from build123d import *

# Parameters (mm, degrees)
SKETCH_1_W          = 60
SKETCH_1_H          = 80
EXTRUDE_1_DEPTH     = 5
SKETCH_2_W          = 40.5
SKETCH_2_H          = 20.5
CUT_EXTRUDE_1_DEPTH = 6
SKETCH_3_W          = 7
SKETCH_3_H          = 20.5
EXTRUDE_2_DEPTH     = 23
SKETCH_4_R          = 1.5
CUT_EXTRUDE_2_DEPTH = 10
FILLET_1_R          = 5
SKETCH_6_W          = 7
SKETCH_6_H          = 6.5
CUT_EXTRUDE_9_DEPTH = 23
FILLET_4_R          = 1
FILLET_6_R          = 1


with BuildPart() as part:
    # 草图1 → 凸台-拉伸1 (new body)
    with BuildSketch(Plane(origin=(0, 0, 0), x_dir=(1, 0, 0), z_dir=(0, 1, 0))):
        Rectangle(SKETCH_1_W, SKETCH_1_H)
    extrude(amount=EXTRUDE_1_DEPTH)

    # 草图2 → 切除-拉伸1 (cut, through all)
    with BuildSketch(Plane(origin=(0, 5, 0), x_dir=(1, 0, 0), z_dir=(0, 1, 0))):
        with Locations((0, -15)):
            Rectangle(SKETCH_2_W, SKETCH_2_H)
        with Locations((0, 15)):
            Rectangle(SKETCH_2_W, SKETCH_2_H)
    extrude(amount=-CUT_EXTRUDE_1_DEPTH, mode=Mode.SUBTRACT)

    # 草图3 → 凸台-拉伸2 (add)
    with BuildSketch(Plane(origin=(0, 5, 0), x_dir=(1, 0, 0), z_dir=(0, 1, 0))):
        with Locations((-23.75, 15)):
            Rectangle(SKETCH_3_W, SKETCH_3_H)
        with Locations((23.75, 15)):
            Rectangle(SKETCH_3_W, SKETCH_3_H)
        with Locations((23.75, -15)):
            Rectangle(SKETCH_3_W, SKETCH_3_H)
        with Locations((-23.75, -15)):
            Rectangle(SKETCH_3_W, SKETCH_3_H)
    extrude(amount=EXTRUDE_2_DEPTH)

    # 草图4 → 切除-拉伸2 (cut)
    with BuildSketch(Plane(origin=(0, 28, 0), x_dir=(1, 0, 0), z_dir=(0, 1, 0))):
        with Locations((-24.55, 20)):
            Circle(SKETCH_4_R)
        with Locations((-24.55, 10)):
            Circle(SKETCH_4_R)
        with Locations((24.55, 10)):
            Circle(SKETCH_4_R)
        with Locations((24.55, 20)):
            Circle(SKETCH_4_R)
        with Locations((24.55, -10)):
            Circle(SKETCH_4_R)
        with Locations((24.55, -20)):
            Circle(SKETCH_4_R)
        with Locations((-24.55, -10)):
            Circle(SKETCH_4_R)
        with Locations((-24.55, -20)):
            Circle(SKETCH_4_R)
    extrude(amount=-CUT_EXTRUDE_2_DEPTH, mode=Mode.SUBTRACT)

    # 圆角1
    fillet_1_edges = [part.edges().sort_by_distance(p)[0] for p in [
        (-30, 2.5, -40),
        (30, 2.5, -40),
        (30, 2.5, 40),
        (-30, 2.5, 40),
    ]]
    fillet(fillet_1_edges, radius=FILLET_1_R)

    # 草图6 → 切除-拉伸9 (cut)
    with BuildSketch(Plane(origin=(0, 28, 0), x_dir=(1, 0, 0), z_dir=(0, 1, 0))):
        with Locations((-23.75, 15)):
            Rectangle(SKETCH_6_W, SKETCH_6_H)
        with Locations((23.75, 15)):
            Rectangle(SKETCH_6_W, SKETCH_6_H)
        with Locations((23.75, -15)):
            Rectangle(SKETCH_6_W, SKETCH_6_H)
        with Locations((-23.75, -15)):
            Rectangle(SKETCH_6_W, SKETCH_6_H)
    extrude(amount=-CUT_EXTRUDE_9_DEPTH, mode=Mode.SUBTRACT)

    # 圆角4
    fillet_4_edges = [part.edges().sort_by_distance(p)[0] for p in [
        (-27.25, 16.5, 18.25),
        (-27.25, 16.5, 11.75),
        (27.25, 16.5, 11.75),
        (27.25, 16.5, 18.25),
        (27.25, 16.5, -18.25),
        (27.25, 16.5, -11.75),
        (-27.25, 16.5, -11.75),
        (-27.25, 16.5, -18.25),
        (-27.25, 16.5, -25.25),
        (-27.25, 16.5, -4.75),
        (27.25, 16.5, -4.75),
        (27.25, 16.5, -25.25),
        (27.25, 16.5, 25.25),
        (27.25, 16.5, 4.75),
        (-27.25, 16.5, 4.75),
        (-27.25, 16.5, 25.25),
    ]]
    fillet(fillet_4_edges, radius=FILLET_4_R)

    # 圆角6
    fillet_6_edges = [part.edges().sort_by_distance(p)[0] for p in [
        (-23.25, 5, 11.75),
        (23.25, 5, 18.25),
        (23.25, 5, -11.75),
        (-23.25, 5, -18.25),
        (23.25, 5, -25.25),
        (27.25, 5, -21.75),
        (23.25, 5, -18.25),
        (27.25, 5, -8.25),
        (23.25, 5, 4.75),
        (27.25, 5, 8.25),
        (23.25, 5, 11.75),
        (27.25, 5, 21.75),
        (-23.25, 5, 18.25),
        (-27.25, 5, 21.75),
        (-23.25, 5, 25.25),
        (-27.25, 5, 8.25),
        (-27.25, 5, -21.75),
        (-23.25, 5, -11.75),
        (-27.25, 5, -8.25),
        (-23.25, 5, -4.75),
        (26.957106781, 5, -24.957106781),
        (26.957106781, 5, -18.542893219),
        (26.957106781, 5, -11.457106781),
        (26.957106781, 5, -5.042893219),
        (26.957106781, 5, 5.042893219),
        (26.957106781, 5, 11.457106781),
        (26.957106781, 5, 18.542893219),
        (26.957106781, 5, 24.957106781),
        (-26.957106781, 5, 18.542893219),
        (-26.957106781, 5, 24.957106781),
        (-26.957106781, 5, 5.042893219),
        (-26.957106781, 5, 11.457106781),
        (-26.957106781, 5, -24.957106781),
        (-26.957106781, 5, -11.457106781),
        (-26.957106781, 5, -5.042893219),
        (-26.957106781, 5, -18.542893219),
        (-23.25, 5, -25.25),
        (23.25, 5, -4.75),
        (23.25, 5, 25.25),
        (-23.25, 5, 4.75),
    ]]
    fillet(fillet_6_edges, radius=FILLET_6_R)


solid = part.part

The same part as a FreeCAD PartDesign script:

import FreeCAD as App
import Part
import Sketcher

V = App.Vector


def edges_at(feature, points):
    """Names of the edges that pass closest to the given points."""
    edges = feature.Shape.Edges
    near = lambda p: min(range(len(edges)), key=lambda i: edges[i].distToShape(Part.Vertex(*p))[0])
    return sorted({f"Edge{near(p) + 1}" for p in points})


def add_polygon(sketch, points):
    """Adds a closed chain of lines whose ends are joined by coincident constraints."""
    first, n = sketch.GeometryCount, len(points)
    for a, b in zip(points, points[1:] + points[:1]):
        sketch.addGeometry(Part.LineSegment(App.Vector(*a, 0), App.Vector(*b, 0)), False)
    for i in range(n):
        sketch.addConstraint(Sketcher.Constraint("Coincident", first + i, 2, first + (i + 1) % n, 1))

doc = App.newDocument("Part")
body = doc.addObject("PartDesign::Body", "Body")

sketch1 = body.newObject("Sketcher::SketchObject", "Sketch")
sketch1.AttachmentSupport = (doc.getObject("XZ_Plane"), [""])
sketch1.MapMode = "FlatFace"
add_polygon(sketch1, [(-30, -40), (-30, 40), (30, 40), (30, -40)])
sketch1.addConstraint([
    Sketcher.Constraint("Vertical", 0),
    Sketcher.Constraint("Horizontal", 1),
    Sketcher.Constraint("Vertical", 2),
    Sketcher.Constraint("Horizontal", 3),
    Sketcher.Constraint("Symmetric", 0, 2, 2, 2, -1, 1),
    Sketcher.Constraint("DistanceX", 1, 1, 1, 2, 60.0),
    Sketcher.Constraint("DistanceY", 0, 1, 0, 2, 80.0),
])
pad1 = body.newObject("PartDesign::Pad", "Pad")
pad1.Profile = sketch1
pad1.Length = 5
pad1.Reversed = True

sketch2 = body.newObject("Sketcher::SketchObject", "Sketch001")
sketch2.AttachmentSupport = (doc.getObject("XZ_Plane"), [""])
sketch2.MapMode = "FlatFace"
sketch2.AttachmentOffset = App.Placement(V(0, 0, -5), App.Rotation())
add_polygon(sketch2, [(-20.25, 4.75), (-20.25, 25.25), (20.25, 25.25), (20.25, 4.75)])
add_polygon(sketch2, [(-20.25, -25.25), (-20.25, -4.75), (20.25, -4.75), (20.25, -25.25)])
sketch2.addConstraint([
    Sketcher.Constraint("Vertical", 0),
    Sketcher.Constraint("Horizontal", 1),
    Sketcher.Constraint("Vertical", 2),
    Sketcher.Constraint("Horizontal", 3),
    Sketcher.Constraint("Vertical", 4),
    Sketcher.Constraint("Horizontal", 5),
    Sketcher.Constraint("Vertical", 6),
    Sketcher.Constraint("Horizontal", 7),
    Sketcher.Constraint("Symmetric", 2, 2, 4, 2, -1, 1),
    Sketcher.Constraint("Symmetric", 0, 2, 6, 2, -1, 1),
    Sketcher.Constraint("Vertical", 3, 2, 4, 2),
    Sketcher.Constraint("DistanceX", 1, 1, 1, 2, 40.5),
    Sketcher.Constraint("DistanceY", 0, 1, 0, 2, 20.5),
    Sketcher.Constraint("DistanceY", 4, 2, 0, 2, 30.0),
])
pocket1 = body.newObject("PartDesign::Pocket", "Pocket")
pocket1.Profile = sketch2
pocket1.Type = "ThroughAll"
pocket1.Reversed = True

sketch3 = body.newObject("Sketcher::SketchObject", "Sketch002")
sketch3.AttachmentSupport = (doc.getObject("XZ_Plane"), [""])
sketch3.MapMode = "FlatFace"
sketch3.AttachmentOffset = App.Placement(V(0, 0, -5), App.Rotation())
add_polygon(sketch3, [(-27.25, -25.25), (-27.25, -4.75), (-20.25, -4.75), (-20.25, -25.25)])
add_polygon(sketch3, [(20.25, -25.25), (20.25, -4.75), (27.25, -4.75), (27.25, -25.25)])
add_polygon(sketch3, [(20.25, 4.75), (20.25, 25.25), (27.25, 25.25), (27.25, 4.75)])
add_polygon(sketch3, [(-27.25, 4.75), (-27.25, 25.25), (-20.25, 25.25), (-20.25, 4.75)])
sketch3.addConstraint([
    Sketcher.Constraint("Vertical", 0),
    Sketcher.Constraint("Horizontal", 1),
    Sketcher.Constraint("Vertical", 2),
    Sketcher.Constraint("Horizontal", 3),
    Sketcher.Constraint("Vertical", 4),
    Sketcher.Constraint("Horizontal", 5),
    Sketcher.Constraint("Vertical", 6),
    Sketcher.Constraint("Horizontal", 7),
    Sketcher.Constraint("Vertical", 8),
    Sketcher.Constraint("Horizontal", 9),
    Sketcher.Constraint("Vertical", 10),
    Sketcher.Constraint("Horizontal", 11),
    Sketcher.Constraint("Vertical", 12),
    Sketcher.Constraint("Horizontal", 13),
    Sketcher.Constraint("Vertical", 14),
    Sketcher.Constraint("Horizontal", 15),
    Sketcher.Constraint("Symmetric", 2, 2, 8, 2, -1, 1),
    Sketcher.Constraint("Symmetric", 0, 2, 10, 2, -1, 1),
    Sketcher.Constraint("Symmetric", 6, 2, 12, 2, -1, 1),
    Sketcher.Constraint("Symmetric", 4, 2, 14, 2, -1, 1),
    Sketcher.Constraint("Symmetric", 1, 2, 4, 2, -2),
    Sketcher.Constraint("Symmetric", 3, 2, 6, 2, -2),
    Sketcher.Constraint("DistanceX", 1, 1, 1, 2, 7.0),
    Sketcher.Constraint("DistanceY", 0, 1, 0, 2, 20.5),
    Sketcher.Constraint("DistanceY", 4, 2, 8, 2, 30.0),
    Sketcher.Constraint("DistanceX", 1, 2, 4, 2, 40.5),
])
pad2 = body.newObject("PartDesign::Pad", "Pad001")
pad2.Profile = sketch3
pad2.Length = 23
pad2.Reversed = True

sketch4 = body.newObject("Sketcher::SketchObject", "Sketch003")
sketch4.AttachmentSupport = (doc.getObject("XZ_Plane"), [""])
sketch4.MapMode = "FlatFace"
sketch4.AttachmentOffset = App.Placement(V(0, 0, -28), App.Rotation())
sketch4.addGeometry([
    Part.Circle(V(-24.55, -20, 0), V(0, 0, 1), 1.5),
    Part.Circle(V(-24.55, -10, 0), V(0, 0, 1), 1.5),
    Part.Circle(V(24.55, -10, 0), V(0, 0, 1), 1.5),
    Part.Circle(V(24.55, -20, 0), V(0, 0, 1), 1.5),
    Part.Circle(V(24.55, 10, 0), V(0, 0, 1), 1.5),
    Part.Circle(V(24.55, 20, 0), V(0, 0, 1), 1.5),
    Part.Circle(V(-24.55, 10, 0), V(0, 0, 1), 1.5),
    Part.Circle(V(-24.55, 20, 0), V(0, 0, 1), 1.5),
], False)
sketch4.addConstraint([
    Sketcher.Constraint("Equal", 0, 1),
    Sketcher.Constraint("Equal", 1, 2),
    Sketcher.Constraint("Equal", 2, 3),
    Sketcher.Constraint("Equal", 3, 4),
    Sketcher.Constraint("Equal", 4, 5),
    Sketcher.Constraint("Equal", 5, 6),
    Sketcher.Constraint("Equal", 6, 7),
    Sketcher.Constraint("Symmetric", 1, 3, 4, 3, -1, 1),
    Sketcher.Constraint("Symmetric", 0, 3, 5, 3, -1, 1),
    Sketcher.Constraint("Symmetric", 2, 3, 6, 3, -1, 1),
    Sketcher.Constraint("Symmetric", 3, 3, 7, 3, -1, 1),
    Sketcher.Constraint("Symmetric", 1, 3, 2, 3, -2),
    Sketcher.Constraint("Symmetric", 0, 3, 3, 3, -2),
    Sketcher.Constraint("Vertical", 0, 3, 1, 3),
    Sketcher.Constraint("Diameter", 0, 3.0),
    Sketcher.Constraint("DistanceY", 0, 3, -1, 1, 20.0),
    Sketcher.Constraint("DistanceY", 1, 3, -1, 1, 10.0),
    Sketcher.Constraint("DistanceX", 1, 3, 2, 3, 49.1),
])
pocket2 = body.newObject("PartDesign::Pocket", "Pocket001")
pocket2.Profile = sketch4
pocket2.Length = 10
pocket2.Reversed = True
doc.recompute()

fillet = body.newObject("PartDesign::Fillet", "Fillet")
fillet.Base = (pocket2, edges_at(pocket2, [
    (-30, 2.5, -40),
    (30, 2.5, -40),
    (30, 2.5, 40),
    (-30, 2.5, 40),
]))
fillet.Radius = 5

sketch5 = body.newObject("Sketcher::SketchObject", "Sketch004")
sketch5.AttachmentSupport = (doc.getObject("XZ_Plane"), [""])
sketch5.MapMode = "FlatFace"
sketch5.AttachmentOffset = App.Placement(V(0, 0, -28), App.Rotation())
add_polygon(sketch5, [(-27.25, -18.25), (-27.25, -11.75), (-20.25, -11.75), (-20.25, -18.25)])
add_polygon(sketch5, [(20.25, -18.25), (20.25, -11.75), (27.25, -11.75), (27.25, -18.25)])
add_polygon(sketch5, [(20.25, 11.75), (20.25, 18.25), (27.25, 18.25), (27.25, 11.75)])
add_polygon(sketch5, [(-27.25, 11.75), (-27.25, 18.25), (-20.25, 18.25), (-20.25, 11.75)])
sketch5.addConstraint([
    Sketcher.Constraint("Vertical", 0),
    Sketcher.Constraint("Horizontal", 1),
    Sketcher.Constraint("Vertical", 2),
    Sketcher.Constraint("Horizontal", 3),
    Sketcher.Constraint("Vertical", 4),
    Sketcher.Constraint("Horizontal", 5),
    Sketcher.Constraint("Vertical", 6),
    Sketcher.Constraint("Horizontal", 7),
    Sketcher.Constraint("Vertical", 8),
    Sketcher.Constraint("Horizontal", 9),
    Sketcher.Constraint("Vertical", 10),
    Sketcher.Constraint("Horizontal", 11),
    Sketcher.Constraint("Vertical", 12),
    Sketcher.Constraint("Horizontal", 13),
    Sketcher.Constraint("Vertical", 14),
    Sketcher.Constraint("Horizontal", 15),
    Sketcher.Constraint("Symmetric", 2, 2, 8, 2, -1, 1),
    Sketcher.Constraint("Symmetric", 0, 2, 10, 2, -1, 1),
    Sketcher.Constraint("Symmetric", 6, 2, 12, 2, -1, 1),
    Sketcher.Constraint("Symmetric", 4, 2, 14, 2, -1, 1),
    Sketcher.Constraint("Symmetric", 1, 2, 4, 2, -2),
    Sketcher.Constraint("Symmetric", 3, 2, 6, 2, -2),
    Sketcher.Constraint("DistanceX", 1, 1, 1, 2, 7.0),
    Sketcher.Constraint("DistanceY", 0, 1, 0, 2, 6.5),
    Sketcher.Constraint("DistanceY", 4, 2, 8, 2, 30.0),
    Sketcher.Constraint("DistanceX", 1, 2, 4, 2, 40.5),
])
pocket3 = body.newObject("PartDesign::Pocket", "Pocket002")
pocket3.Profile = sketch5
pocket3.Length = 23
pocket3.Reversed = True
doc.recompute()

fillet2 = body.newObject("PartDesign::Fillet", "Fillet001")
fillet2.Base = (pocket3, edges_at(pocket3, [
    (-27.25, 16.5, 18.25),
    (-27.25, 16.5, 11.75),
    (27.25, 16.5, 11.75),
    (27.25, 16.5, 18.25),
    (27.25, 16.5, -18.25),
    (27.25, 16.5, -11.75),
    (-27.25, 16.5, -11.75),
    (-27.25, 16.5, -18.25),
    (-27.25, 16.5, -25.25),
    (-27.25, 16.5, -4.75),
    (27.25, 16.5, -4.75),
    (27.25, 16.5, -25.25),
    (27.25, 16.5, 25.25),
    (27.25, 16.5, 4.75),
    (-27.25, 16.5, 4.75),
    (-27.25, 16.5, 25.25),
]))
fillet2.Radius = 1
doc.recompute()

fillet3 = body.newObject("PartDesign::Fillet", "Fillet002")
fillet3.Base = (fillet2, edges_at(fillet2, [
    (-23.25, 5, 11.75),
    (23.25, 5, 18.25),
    (23.25, 5, -11.75),
    (-23.25, 5, -18.25),
    (23.25, 5, -25.25),
    (27.25, 5, -21.75),
    (23.25, 5, -18.25),
    (27.25, 5, -8.25),
    (23.25, 5, 4.75),
    (27.25, 5, 8.25),
    (23.25, 5, 11.75),
    (27.25, 5, 21.75),
    (-23.25, 5, 18.25),
    (-27.25, 5, 21.75),
    (-23.25, 5, 25.25),
    (-27.25, 5, 8.25),
    (-27.25, 5, -21.75),
    (-23.25, 5, -11.75),
    (-27.25, 5, -8.25),
    (-23.25, 5, -4.75),
    (26.957, 5, -24.957),
    (26.957, 5, -18.543),
    (26.957, 5, -11.457),
    (26.957, 5, -5.043),
    (26.957, 5, 5.043),
    (26.957, 5, 11.457),
    (26.957, 5, 18.543),
    (26.957, 5, 24.957),
    (-26.957, 5, 18.543),
    (-26.957, 5, 24.957),
    (-26.957, 5, 5.043),
    (-26.957, 5, 11.457),
    (-26.957, 5, -24.957),
    (-26.957, 5, -11.457),
    (-26.957, 5, -5.043),
    (-26.957, 5, -18.543),
    (-23.25, 5, -25.25),
    (23.25, 5, -4.75),
    (23.25, 5, 25.25),
    (-23.25, 5, 4.75),
]))
fillet3.Radius = 1

doc.recompute()
